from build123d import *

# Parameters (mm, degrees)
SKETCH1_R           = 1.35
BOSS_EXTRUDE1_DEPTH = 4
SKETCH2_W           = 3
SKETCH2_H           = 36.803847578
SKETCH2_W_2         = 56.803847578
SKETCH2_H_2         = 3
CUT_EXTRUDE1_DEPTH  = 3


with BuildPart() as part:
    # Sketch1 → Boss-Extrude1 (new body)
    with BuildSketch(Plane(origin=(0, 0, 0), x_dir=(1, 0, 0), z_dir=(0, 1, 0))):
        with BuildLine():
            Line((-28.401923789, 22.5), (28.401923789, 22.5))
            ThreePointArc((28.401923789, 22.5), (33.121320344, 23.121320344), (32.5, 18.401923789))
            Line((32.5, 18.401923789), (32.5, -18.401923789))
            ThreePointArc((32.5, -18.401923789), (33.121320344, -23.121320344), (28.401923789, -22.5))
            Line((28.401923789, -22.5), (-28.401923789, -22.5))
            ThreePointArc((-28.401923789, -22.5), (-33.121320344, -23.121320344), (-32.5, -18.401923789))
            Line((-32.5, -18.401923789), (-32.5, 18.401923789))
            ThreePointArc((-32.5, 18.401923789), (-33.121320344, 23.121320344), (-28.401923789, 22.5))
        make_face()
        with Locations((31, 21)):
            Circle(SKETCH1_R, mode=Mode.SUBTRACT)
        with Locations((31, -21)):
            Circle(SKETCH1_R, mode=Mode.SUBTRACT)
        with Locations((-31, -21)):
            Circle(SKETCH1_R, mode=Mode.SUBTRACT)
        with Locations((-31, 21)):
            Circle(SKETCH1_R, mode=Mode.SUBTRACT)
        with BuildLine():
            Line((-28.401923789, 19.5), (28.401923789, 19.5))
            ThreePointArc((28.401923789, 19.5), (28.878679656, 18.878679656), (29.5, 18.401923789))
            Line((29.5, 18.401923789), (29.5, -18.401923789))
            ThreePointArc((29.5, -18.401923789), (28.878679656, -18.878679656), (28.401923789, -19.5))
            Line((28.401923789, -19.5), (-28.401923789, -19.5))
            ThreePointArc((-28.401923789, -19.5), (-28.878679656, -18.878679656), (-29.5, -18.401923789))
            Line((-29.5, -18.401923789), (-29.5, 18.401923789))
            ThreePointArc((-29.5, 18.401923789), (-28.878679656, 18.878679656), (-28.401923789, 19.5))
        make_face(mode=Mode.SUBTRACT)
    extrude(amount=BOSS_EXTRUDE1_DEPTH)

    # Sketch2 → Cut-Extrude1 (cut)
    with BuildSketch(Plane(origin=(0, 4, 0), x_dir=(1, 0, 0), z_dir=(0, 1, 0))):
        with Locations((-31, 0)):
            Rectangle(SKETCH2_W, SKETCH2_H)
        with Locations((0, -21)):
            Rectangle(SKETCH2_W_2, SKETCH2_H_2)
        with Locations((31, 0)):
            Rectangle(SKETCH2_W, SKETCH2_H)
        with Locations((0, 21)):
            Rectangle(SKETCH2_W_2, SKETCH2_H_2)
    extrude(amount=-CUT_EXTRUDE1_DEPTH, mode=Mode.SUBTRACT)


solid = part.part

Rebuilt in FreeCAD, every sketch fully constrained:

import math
import FreeCAD as App
import Part
import Sketcher
from FreeCAD import Vector
Q = App.Units.Quantity

doc = App.newDocument("Part")
body = doc.addObject("PartDesign::Body", "Body")

# Sketch on XZ plane
sketch1 = body.newObject("Sketcher::SketchObject", "Sketch")
sketch1.AttachmentSupport = (doc.getObject("XZ_Plane"), [""])
sketch1.MapMode = "FlatFace"
sketch1.addGeometry([
    Part.LineSegment(Vector(28.4, -22.5, 0), Vector(-28.4, -22.5, 0)),  # 0
    Part.ArcOfCircle(Part.Circle(Vector(-31, -21, 0), Vector(0, 0, 1), 3), math.radians(120), math.radians(330)),  # 1
    Part.LineSegment(Vector(-32.5, -18.4, 0), Vector(-32.5, 18.4, 0)),  # 2
    Part.ArcOfCircle(Part.Circle(Vector(-31, 21, 0), Vector(0, 0, 1), 3), math.radians(30), math.radians(240)),  # 3
    Part.LineSegment(Vector(-28.4, 22.5, 0), Vector(28.4, 22.5, 0)),  # 4
    Part.ArcOfCircle(Part.Circle(Vector(31, 21, 0), Vector(0, 0, 1), 3), math.radians(-60), math.radians(150)),  # 5
    Part.LineSegment(Vector(32.5, 18.4, 0), Vector(32.5, -18.4, 0)),  # 6
    Part.ArcOfCircle(Part.Circle(Vector(31, -21, 0), Vector(0, 0, 1), 3), math.radians(-150), math.radians(60)),  # 7
    Part.Circle(Vector(31, 21, 0), Vector(0, 0, 1), 1.4),  # 8
    Part.Circle(Vector(-31, 21, 0), Vector(0, 0, 1), 1.4),  # 9
    Part.Circle(Vector(31, -21, 0), Vector(0, 0, 1), 1.4),  # 10
    Part.LineSegment(Vector(-28.4, -19.5, 0), Vector(28.4, -19.5, 0)),  # 11
    Part.ArcOfCircle(Part.Circle(Vector(31, -21, 0), Vector(0, 0, 1), 3), math.radians(120), math.radians(150)),  # 12
    Part.LineSegment(Vector(29.5, -18.4, 0), Vector(29.5, 18.4, 0)),  # 13
    Part.ArcOfCircle(Part.Circle(Vector(31, 21, 0), Vector(0, 0, 1), 3), math.radians(-150), math.radians(-120)),  # 14
    Part.LineSegment(Vector(28.4, 19.5, 0), Vector(-28.4, 19.5, 0)),  # 15
    Part.ArcOfCircle(Part.Circle(Vector(-31, 21, 0), Vector(0, 0, 1), 3), math.radians(-60), math.radians(-30)),  # 16
    Part.LineSegment(Vector(-29.5, 18.4, 0), Vector(-29.5, -18.4, 0)),  # 17
    Part.ArcOfCircle(Part.Circle(Vector(-31, -21, 0), Vector(0, 0, 1), 3), math.radians(30), math.radians(60)),  # 18
    Part.Circle(Vector(-31, -21, 0), Vector(0, 0, 1), 1.4),  # 19
], False)
sketch1.addConstraint([
    Sketcher.Constraint("Coincident", 0, 2, 1, 2),
    Sketcher.Constraint("Coincident", 1, 1, 2, 1),
    Sketcher.Constraint("Coincident", 2, 2, 3, 2),
    Sketcher.Constraint("Coincident", 3, 1, 4, 1),
    Sketcher.Constraint("Coincident", 4, 2, 5, 2),
    Sketcher.Constraint("Coincident", 5, 1, 6, 1),
    Sketcher.Constraint("Coincident", 6, 2, 7, 2),
    Sketcher.Constraint("Coincident", 7, 1, 0, 1),
    Sketcher.Constraint("Coincident", 11, 2, 12, 2),
    Sketcher.Constraint("Coincident", 12, 1, 13, 1),
    Sketcher.Constraint("Coincident", 13, 2, 14, 2),
    Sketcher.Constraint("Coincident", 14, 1, 15, 1),
    Sketcher.Constraint("Coincident", 15, 2, 16, 2),
    Sketcher.Constraint("Coincident", 16, 1, 17, 1),
    Sketcher.Constraint("Coincident", 17, 2, 18, 2),
    Sketcher.Constraint("Coincident", 18, 1, 11, 1),
    Sketcher.Constraint("Horizontal", 0),
    Sketcher.Constraint("Vertical", 2),
    Sketcher.Constraint("Horizontal", 4),
    Sketcher.Constraint("Vertical", 6),
    Sketcher.Constraint("Horizontal", 11),
    Sketcher.Constraint("Vertical", 13),
    Sketcher.Constraint("Horizontal", 15),
    Sketcher.Constraint("Vertical", 17),
    Sketcher.Constraint("Coincident", 8, 3, 5, 3),
    Sketcher.Constraint("Coincident", 9, 3, 3, 3),
    Sketcher.Constraint("Coincident", 10, 3, 7, 3),
    Sketcher.Constraint("Coincident", 12, 3, 7, 3),
    Sketcher.Constraint("Coincident", 14, 3, 5, 3),
    Sketcher.Constraint("Coincident", 16, 3, 3, 3),
    Sketcher.Constraint("Coincident", 18, 3, 1, 3),
    Sketcher.Constraint("Coincident", 19, 3, 1, 3),
    Sketcher.Constraint("Equal", 1, 3),
    Sketcher.Constraint("Equal", 3, 5),
    Sketcher.Constraint("Equal", 5, 7),
    Sketcher.Constraint("Equal", 8, 9),
    Sketcher.Constraint("Equal", 9, 10),
    Sketcher.Constraint("Equal", 7, 12),
    Sketcher.Constraint("Equal", 12, 14),
    Sketcher.Constraint("Equal", 14, 16),
    Sketcher.Constraint("Equal", 16, 18),
    Sketcher.Constraint("Equal", 10, 19),
    Sketcher.Constraint("Symmetric", 1, 3, 5, 3, -1, 1),
    Sketcher.Constraint("Symmetric", 3, 3, 7, 3, -1, 1),
    Sketcher.Constraint("Symmetric", 3, 3, 5, 3, -2),
    Sketcher.Constraint("Horizontal", 2, 2, 5, 1),
    Sketcher.Constraint("Horizontal", 6, 2, 12, 1),
    Sketcher.Constraint("Horizontal", 13, 2, 16, 1),
    Sketcher.Constraint("Vertical", 0, 2, 3, 1),
    Sketcher.Constraint("Vertical", 7, 1, 11, 2),
    Sketcher.Constraint("Vertical", 11, 2, 14, 1),
    Sketcher.Constraint("Radius", 1, Q("3 mm")),
    Sketcher.Constraint("Diameter", 8, Q("2.7 mm")),
    Sketcher.Constraint("DistanceX", 1, 3, -1, 1, Q("31 mm")),
    Sketcher.Constraint("DistanceY", 1, 3, -1, 1, Q("21 mm")),
    Sketcher.Constraint("DistanceY", 7, 1, 11, 2, Q("3 mm")),
    Sketcher.Constraint("DistanceX", 12, 1, 6, 2, Q("3 mm")),
])
pad1 = body.newObject("PartDesign::Pad", "Pad")
pad1.Profile = sketch1
pad1.Length = 4
pad1.Reversed = True

# Sketch on XZ plane
sketch2 = body.newObject("Sketcher::SketchObject", "Sketch001")
sketch2.AttachmentSupport = (doc.getObject("XZ_Plane"), [""])
sketch2.MapMode = "FlatFace"
sketch2.AttachmentOffset = App.Placement(Vector(0, 0, -4), App.Rotation())
sketch2.addGeometry([
    Part.LineSegment(Vector(-32.5, -18.4, 0), Vector(-32.5, 18.4, 0)),  # 0
    Part.LineSegment(Vector(-32.5, 18.4, 0), Vector(-29.5, 18.4, 0)),  # 1
    Part.LineSegment(Vector(-29.5, 18.4, 0), Vector(-29.5, -18.4, 0)),  # 2
    Part.LineSegment(Vector(-29.5, -18.4, 0), Vector(-32.5, -18.4, 0)),  # 3
    Part.LineSegment(Vector(-28.4, 19.5, 0), Vector(-28.4, 22.5, 0)),  # 4
    Part.LineSegment(Vector(-28.4, 22.5, 0), Vector(28.4, 22.5, 0)),  # 5
    Part.LineSegment(Vector(28.4, 22.5, 0), Vector(28.4, 19.5, 0)),  # 6
    Part.LineSegment(Vector(28.4, 19.5, 0), Vector(-28.4, 19.5, 0)),  # 7
    Part.LineSegment(Vector(29.5, -18.4, 0), Vector(29.5, 18.4, 0)),  # 8
    Part.LineSegment(Vector(29.5, 18.4, 0), Vector(32.5, 18.4, 0)),  # 9
    Part.LineSegment(Vector(32.5, 18.4, 0), Vector(32.5, -18.4, 0)),  # 10
    Part.LineSegment(Vector(32.5, -18.4, 0), Vector(29.5, -18.4, 0)),  # 11
    Part.LineSegment(Vector(-28.4, -22.5, 0), Vector(-28.4, -19.5, 0)),  # 12
    Part.LineSegment(Vector(-28.4, -19.5, 0), Vector(28.4, -19.5, 0)),  # 13
    Part.LineSegment(Vector(28.4, -19.5, 0), Vector(28.4, -22.5, 0)),  # 14
    Part.LineSegment(Vector(28.4, -22.5, 0), Vector(-28.4, -22.5, 0)),  # 15
], False)
sketch2.addConstraint([
    Sketcher.Constraint("Coincident", 0, 2, 1, 1),
    Sketcher.Constraint("Coincident", 1, 2, 2, 1),
    Sketcher.Constraint("Coincident", 2, 2, 3, 1),
    Sketcher.Constraint("Coincident", 3, 2, 0, 1),
    Sketcher.Constraint("Coincident", 4, 2, 5, 1),
    Sketcher.Constraint("Coincident", 5, 2, 6, 1),
    Sketcher.Constraint("Coincident", 6, 2, 7, 1),
    Sketcher.Constraint("Coincident", 7, 2, 4, 1),
    Sketcher.Constraint("Coincident", 8, 2, 9, 1),
    Sketcher.Constraint("Coincident", 9, 2, 10, 1),
    Sketcher.Constraint("Coincident", 10, 2, 11, 1),
    Sketcher.Constraint("Coincident", 11, 2, 8, 1),
    Sketcher.Constraint("Coincident", 12, 2, 13, 1),
    Sketcher.Constraint("Coincident", 13, 2, 14, 1),
    Sketcher.Constraint("Coincident", 14, 2, 15, 1),
    Sketcher.Constraint("Coincident", 15, 2, 12, 1),
    Sketcher.Constraint("Vertical", 0),
    Sketcher.Constraint("Horizontal", 1),
    Sketcher.Constraint("Vertical", 2),
    Sketcher.Constraint("Horizontal", 3),
    Sketcher.Constraint("Vertical", 4),
    Sketcher.Constraint("Horizontal", 5),
    Sketcher.Constraint("Vertical", 6),
    Sketcher.Constraint("Horizontal", 7),
    Sketcher.Constraint("Vertical", 8),
    Sketcher.Constraint("Horizontal", 9),
    Sketcher.Constraint("Vertical", 10),
    Sketcher.Constraint("Horizontal", 11),
    Sketcher.Constraint("Vertical", 12),
    Sketcher.Constraint("Horizontal", 13),
    Sketcher.Constraint("Vertical", 14),
    Sketcher.Constraint("Horizontal", 15),
    Sketcher.Constraint("Symmetric", 2, 2, 8, 2, -1, 1),
    Sketcher.Constraint("Symmetric", 0, 2, 10, 2, -1, 1),
    Sketcher.Constraint("Symmetric", 6, 2, 12, 2, -1, 1),
    Sketcher.Constraint("Symmetric", 4, 2, 14, 2, -1, 1),
    Sketcher.Constraint("Horizontal", 1, 2, 8, 2),
    Sketcher.Constraint("Vertical", 7, 2, 12, 2),
    Sketcher.Constraint("Equal", 11, 4),
    Sketcher.Constraint("DistanceX", 1, 1, 1, 2, Q("3 mm")),
    Sketcher.Constraint("DistanceX", 1, 2, 8, 2, Q("59 mm")),
    Sketcher.Constraint("DistanceY", 12, 2, 7, 2, Q("39 mm")),
    Sketcher.Constraint("DistanceX", 5, 1, 5, 2, Q("56.803848 mm")),
    Sketcher.Constraint("DistanceY", 0, 1, 0, 2, Q("36.803848 mm")),
])
pocket1 = body.newObject("PartDesign::Pocket", "Pocket")
pocket1.Profile = sketch2
pocket1.Length = 3
pocket1.Reversed = True

doc.recompute()
